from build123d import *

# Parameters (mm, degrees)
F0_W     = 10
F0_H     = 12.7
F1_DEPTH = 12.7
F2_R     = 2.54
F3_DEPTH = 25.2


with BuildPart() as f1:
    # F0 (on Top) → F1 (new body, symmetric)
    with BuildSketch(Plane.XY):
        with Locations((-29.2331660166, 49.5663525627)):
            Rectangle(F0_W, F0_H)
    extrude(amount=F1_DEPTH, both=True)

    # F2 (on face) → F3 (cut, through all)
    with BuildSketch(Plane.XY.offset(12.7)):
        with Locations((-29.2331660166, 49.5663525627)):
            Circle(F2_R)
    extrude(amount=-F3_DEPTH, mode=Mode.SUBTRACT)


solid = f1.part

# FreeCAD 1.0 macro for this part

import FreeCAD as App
import Part
import Sketcher
from FreeCAD import Vector


def add_polygon(sketch, points):
    """Adds a closed chain of lines whose ends are joined by coincident constraints."""
    first, n = sketch.GeometryCount, len(points)
    for a, b in zip(points, points[1:] + points[:1]):
        sketch.addGeometry(Part.LineSegment(App.Vector(*a, 0), App.Vector(*b, 0)), False)
    for i in range(n):
        sketch.addConstraint(Sketcher.Constraint("Coincident", first + i, 2, first + (i + 1) % n, 1))

doc = App.newDocument("Part")
params = doc.addObject("Spreadsheet::Sheet", "Params")
for row, (alias, value) in enumerate([
    ("sketch1_width", "10 mm"),
    ("sketch1_height", "12.7 mm"),
    ("pad1_length", "25.4 mm"),
    ("sketch2_diameter", "5.08 mm"),
    ("pocket1_length", "25.2 mm"),
], start=1):
    params.set(f"A{row}", alias)
    params.set(f"B{row}", "=" + value)
    params.setAlias(f"B{row}", alias)

body = doc.addObject("PartDesign::Body", "Body")

sketch1 = body.newObject("Sketcher::SketchObject", "Sketch")
sketch1.AttachmentSupport = (doc.getObject("XY_Plane"), [""])
sketch1.MapMode = "FlatFace"
add_polygon(sketch1, [(-34, 56), (-34, 43), (-24, 43), (-24, 56)])
sketch1.addConstraint(Sketcher.Constraint("Vertical", 0))
sketch1.addConstraint(Sketcher.Constraint("Horizontal", 1))
sketch1.addConstraint(Sketcher.Constraint("Vertical", 2))
sketch1.addConstraint(Sketcher.Constraint("Horizontal", 3))
sketch1.addConstraint(Sketcher.Constraint("DistanceX", 1, 1, 1, 2, 10.0))
sketch1.addConstraint(Sketcher.Constraint("DistanceY", 0, 2, 0, 1, 12.7))
sketch1.addConstraint(Sketcher.Constraint("DistanceX", 0, 2, -1, 1, 34.233166))
sketch1.addConstraint(Sketcher.Constraint("DistanceY", -1, 1, 0, 2, 43.216353))
sketch1.setExpression("Constraints[8]", "Params.sketch1_width")
sketch1.setExpression("Constraints[9]", "Params.sketch1_height")
pad1 = body.newObject("PartDesign::Pad", "Pad")
pad1.Profile = sketch1
pad1.setExpression("Length", "Params.pad1_length")
pad1.Midplane = True

sketch2 = body.newObject("Sketcher::SketchObject", "Sketch001")
sketch2.AttachmentSupport = (doc.getObject("XY_Plane"), [""])
sketch2.MapMode = "FlatFace"
sketch2.AttachmentOffset = App.Placement(Vector(0, 0, 12.7), App.Rotation())
sketch2.addGeometry(Part.Circle(Vector(-29.2, 49.6, 0), Vector(0, 0, 1), 2.5), False)
sketch2.addConstraint(Sketcher.Constraint("Diameter", 0, 5.08))
sketch2.addConstraint(Sketcher.Constraint("DistanceX", 0, 3, -1, 1, 29.233166))
sketch2.addConstraint(Sketcher.Constraint("DistanceY", -1, 1, 0, 3, 49.566353))
sketch2.setExpression("Constraints[0]", "Params.sketch2_diameter")
pocket1 = body.newObject("PartDesign::Pocket", "Pocket")
pocket1.Profile = sketch2
pocket1.setExpression("Length", "Params.pocket1_length")

doc.recompute()
